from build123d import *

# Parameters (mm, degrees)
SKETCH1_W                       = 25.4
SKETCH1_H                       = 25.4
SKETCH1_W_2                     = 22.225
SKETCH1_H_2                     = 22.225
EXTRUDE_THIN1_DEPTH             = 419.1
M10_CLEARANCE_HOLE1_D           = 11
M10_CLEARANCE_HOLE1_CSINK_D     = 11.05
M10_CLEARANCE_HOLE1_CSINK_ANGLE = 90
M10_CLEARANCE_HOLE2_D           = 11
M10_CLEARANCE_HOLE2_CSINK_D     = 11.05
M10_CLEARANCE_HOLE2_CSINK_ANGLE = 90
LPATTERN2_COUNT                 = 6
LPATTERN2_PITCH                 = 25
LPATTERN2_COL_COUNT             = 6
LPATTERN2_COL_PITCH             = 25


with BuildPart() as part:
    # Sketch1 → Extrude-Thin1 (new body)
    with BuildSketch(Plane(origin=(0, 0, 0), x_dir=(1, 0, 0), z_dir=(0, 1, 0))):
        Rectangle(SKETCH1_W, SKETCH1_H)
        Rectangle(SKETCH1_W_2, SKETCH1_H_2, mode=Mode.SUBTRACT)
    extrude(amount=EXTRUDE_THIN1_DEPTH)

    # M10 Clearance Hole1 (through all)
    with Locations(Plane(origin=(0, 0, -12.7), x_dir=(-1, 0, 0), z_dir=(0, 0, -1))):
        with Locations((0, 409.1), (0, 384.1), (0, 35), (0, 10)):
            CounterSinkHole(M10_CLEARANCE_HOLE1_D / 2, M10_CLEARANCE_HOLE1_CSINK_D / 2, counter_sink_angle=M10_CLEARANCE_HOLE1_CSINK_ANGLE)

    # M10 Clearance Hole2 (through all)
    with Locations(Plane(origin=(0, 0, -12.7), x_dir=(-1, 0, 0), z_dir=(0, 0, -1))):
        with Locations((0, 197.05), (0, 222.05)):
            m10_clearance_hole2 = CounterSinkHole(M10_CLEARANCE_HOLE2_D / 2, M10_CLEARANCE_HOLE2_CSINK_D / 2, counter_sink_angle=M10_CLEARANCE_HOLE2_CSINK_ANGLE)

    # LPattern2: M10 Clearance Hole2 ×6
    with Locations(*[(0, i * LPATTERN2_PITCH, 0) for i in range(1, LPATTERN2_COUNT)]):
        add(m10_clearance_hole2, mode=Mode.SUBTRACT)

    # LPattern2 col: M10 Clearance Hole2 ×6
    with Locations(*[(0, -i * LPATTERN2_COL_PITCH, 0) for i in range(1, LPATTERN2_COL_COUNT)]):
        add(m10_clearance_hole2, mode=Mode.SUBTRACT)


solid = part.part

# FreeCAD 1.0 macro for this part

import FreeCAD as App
import Part
import Sketcher
Q = App.Units.Quantity


def add_polygon(sketch, points):
    """Adds a closed chain of lines whose ends are joined by coincident constraints."""
    first, n = sketch.GeometryCount, len(points)
    for a, b in zip(points, points[1:] + points[:1]):
        sketch.addGeometry(Part.LineSegment(App.Vector(*a, 0), App.Vector(*b, 0)), False)
    for i in range(n):
        sketch.addConstraint(Sketcher.Constraint("Coincident", first + i, 2, first + (i + 1) % n, 1))

doc = App.newDocument("Part")
body = doc.addObject("PartDesign::Body", "Body")

# Sketch on XZ plane
sketch1 = body.newObject("Sketcher::SketchObject", "Sketch")
sketch1.AttachmentSupport = (doc.getObject("XZ_Plane"), [""])
sketch1.MapMode = "FlatFace"
add_polygon(sketch1, [(-13, -13), (-13, 13), (13, 13), (13, -13)])  # lines 0-3
add_polygon(sketch1, [(11, 11), (-11, 11), (-11, -11), (11, -11)])  # lines 4-7
sketch1.addConstraint([
    Sketcher.Constraint("Vertical", 0),
    Sketcher.Constraint("Horizontal", 1),
    Sketcher.Constraint("Vertical", 2),
    Sketcher.Constraint("Horizontal", 3),
    Sketcher.Constraint("Horizontal", 4),
    Sketcher.Constraint("Vertical", 5),
    Sketcher.Constraint("Horizontal", 6),
    Sketcher.Constraint("Vertical", 7),
    Sketcher.Constraint("Symmetric", 0, 2, 2, 2, -1, 1),
    Sketcher.Constraint("Symmetric", 4, 2, 6, 2, -1, 1),
    Sketcher.Constraint("Equal", 3, 0),
    Sketcher.Constraint("Equal", 6, 5),
    Sketcher.Constraint("DistanceX", 1, 1, 1, 2, Q("1 in")),
    Sketcher.Constraint("DistanceX", 4, 2, 4, 1, Q("0.875 in")),
])
pad1 = body.newObject("PartDesign::Pad", "Pad")
pad1.Profile = sketch1
pad1.Length = Q("16.5 in")
pad1.Reversed = True

# Sketch on XY plane
sketch2 = body.newObject("Sketcher::SketchObject", "Sketch001")
sketch2.AttachmentSupport = (doc.getObject("XY_Plane"), [""])
sketch2.MapMode = "FlatFace"
sketch2.AttachmentOffset = App.Placement(App.Vector(0, 0, -0.5 * 25.4), App.Rotation())
sketch2.addGeometry([
    Part.Circle(App.Vector(0, 409, 0), App.Vector(0, 0, 1), 6),
    Part.Circle(App.Vector(0, 384, 0), App.Vector(0, 0, 1), 6),
    Part.Circle(App.Vector(0, 35, 0), App.Vector(0, 0, 1), 6),
    Part.Circle(App.Vector(0, 10, 0), App.Vector(0, 0, 1), 6),
], False)
sketch2.addConstraint([
    Sketcher.Constraint("Equal", 0, 1),
    Sketcher.Constraint("Equal", 1, 2),
    Sketcher.Constraint("Equal", 2, 3),
    Sketcher.Constraint("PointOnObject", 0, 3, -2),
    Sketcher.Constraint("PointOnObject", 1, 3, -2),
    Sketcher.Constraint("PointOnObject", 2, 3, -2),
    Sketcher.Constraint("PointOnObject", 3, 3, -2),
    Sketcher.Constraint("Diameter", 0, Q("11 mm")),
    Sketcher.Constraint("DistanceY", -1, 1, 0, 3, Q("409.1 mm")),
    Sketcher.Constraint("DistanceY", -1, 1, 1, 3, Q("384.1 mm")),
    Sketcher.Constraint("DistanceY", -1, 1, 2, 3, Q("35 mm")),
    Sketcher.Constraint("DistanceY", -1, 1, 3, 3, Q("10 mm")),
])
doc.recompute()
hole = body.newObject("PartDesign::Hole", "Hole")
hole.Profile = sketch2
hole.ThreadType = "None"
hole.Diameter = 11
hole.DepthType = "ThroughAll"
hole.HoleCutType = "Countersink"
hole.HoleCutDiameter = 11.05
hole.HoleCutCountersinkAngle = 90
hole.Reversed = True

# Sketch on XY plane
sketch3 = body.newObject("Sketcher::SketchObject", "Sketch002")
sketch3.AttachmentSupport = (doc.getObject("XY_Plane"), [""])
sketch3.MapMode = "FlatFace"
sketch3.AttachmentOffset = App.Placement(App.Vector(0, 0, -0.5 * 25.4), App.Rotation())
sketch3.addGeometry([
    Part.Circle(App.Vector(0, 197, 0), App.Vector(0, 0, 1), 6),
    Part.Circle(App.Vector(0, 222, 0), App.Vector(0, 0, 1), 6),
], False)
sketch3.addConstraint([
    Sketcher.Constraint("Equal", 0, 1),
    Sketcher.Constraint("PointOnObject", 0, 3, -2),
    Sketcher.Constraint("PointOnObject", 1, 3, -2),
    Sketcher.Constraint("Diameter", 0, Q("11 mm")),
    Sketcher.Constraint("DistanceY", -1, 1, 0, 3, Q("197.05 mm")),
    Sketcher.Constraint("DistanceY", -1, 1, 1, 3, Q("222.05 mm")),
])
doc.recompute()
hole2 = body.newObject("PartDesign::Hole", "Hole001")
hole2.Profile = sketch3
hole2.ThreadType = "None"
hole2.Diameter = 11
hole2.DepthType = "ThroughAll"
hole2.HoleCutType = "Countersink"
hole2.HoleCutDiameter = 11.05
hole2.HoleCutCountersinkAngle = 90
hole2.Reversed = True
doc.recompute()

linearpattern = body.newObject("PartDesign::LinearPattern", "LinearPattern")
linearpattern.Originals = [hole2]
linearpattern.Direction = (doc.getObject("Y_Axis"), [""])
linearpattern.Mode = "offset"
linearpattern.Offset = 25
linearpattern.Occurrences = 6
body.Tip = linearpattern
doc.recompute()

linearpattern2 = body.newObject("PartDesign::LinearPattern", "LinearPattern001")
linearpattern2.Originals = [hole2]
linearpattern2.Direction = (doc.getObject("Y_Axis"), [""])
linearpattern2.Mode = "offset"
linearpattern2.Offset = 25
linearpattern2.Occurrences = 6
linearpattern2.Reversed = True
body.Tip = linearpattern2

doc.recompute()
